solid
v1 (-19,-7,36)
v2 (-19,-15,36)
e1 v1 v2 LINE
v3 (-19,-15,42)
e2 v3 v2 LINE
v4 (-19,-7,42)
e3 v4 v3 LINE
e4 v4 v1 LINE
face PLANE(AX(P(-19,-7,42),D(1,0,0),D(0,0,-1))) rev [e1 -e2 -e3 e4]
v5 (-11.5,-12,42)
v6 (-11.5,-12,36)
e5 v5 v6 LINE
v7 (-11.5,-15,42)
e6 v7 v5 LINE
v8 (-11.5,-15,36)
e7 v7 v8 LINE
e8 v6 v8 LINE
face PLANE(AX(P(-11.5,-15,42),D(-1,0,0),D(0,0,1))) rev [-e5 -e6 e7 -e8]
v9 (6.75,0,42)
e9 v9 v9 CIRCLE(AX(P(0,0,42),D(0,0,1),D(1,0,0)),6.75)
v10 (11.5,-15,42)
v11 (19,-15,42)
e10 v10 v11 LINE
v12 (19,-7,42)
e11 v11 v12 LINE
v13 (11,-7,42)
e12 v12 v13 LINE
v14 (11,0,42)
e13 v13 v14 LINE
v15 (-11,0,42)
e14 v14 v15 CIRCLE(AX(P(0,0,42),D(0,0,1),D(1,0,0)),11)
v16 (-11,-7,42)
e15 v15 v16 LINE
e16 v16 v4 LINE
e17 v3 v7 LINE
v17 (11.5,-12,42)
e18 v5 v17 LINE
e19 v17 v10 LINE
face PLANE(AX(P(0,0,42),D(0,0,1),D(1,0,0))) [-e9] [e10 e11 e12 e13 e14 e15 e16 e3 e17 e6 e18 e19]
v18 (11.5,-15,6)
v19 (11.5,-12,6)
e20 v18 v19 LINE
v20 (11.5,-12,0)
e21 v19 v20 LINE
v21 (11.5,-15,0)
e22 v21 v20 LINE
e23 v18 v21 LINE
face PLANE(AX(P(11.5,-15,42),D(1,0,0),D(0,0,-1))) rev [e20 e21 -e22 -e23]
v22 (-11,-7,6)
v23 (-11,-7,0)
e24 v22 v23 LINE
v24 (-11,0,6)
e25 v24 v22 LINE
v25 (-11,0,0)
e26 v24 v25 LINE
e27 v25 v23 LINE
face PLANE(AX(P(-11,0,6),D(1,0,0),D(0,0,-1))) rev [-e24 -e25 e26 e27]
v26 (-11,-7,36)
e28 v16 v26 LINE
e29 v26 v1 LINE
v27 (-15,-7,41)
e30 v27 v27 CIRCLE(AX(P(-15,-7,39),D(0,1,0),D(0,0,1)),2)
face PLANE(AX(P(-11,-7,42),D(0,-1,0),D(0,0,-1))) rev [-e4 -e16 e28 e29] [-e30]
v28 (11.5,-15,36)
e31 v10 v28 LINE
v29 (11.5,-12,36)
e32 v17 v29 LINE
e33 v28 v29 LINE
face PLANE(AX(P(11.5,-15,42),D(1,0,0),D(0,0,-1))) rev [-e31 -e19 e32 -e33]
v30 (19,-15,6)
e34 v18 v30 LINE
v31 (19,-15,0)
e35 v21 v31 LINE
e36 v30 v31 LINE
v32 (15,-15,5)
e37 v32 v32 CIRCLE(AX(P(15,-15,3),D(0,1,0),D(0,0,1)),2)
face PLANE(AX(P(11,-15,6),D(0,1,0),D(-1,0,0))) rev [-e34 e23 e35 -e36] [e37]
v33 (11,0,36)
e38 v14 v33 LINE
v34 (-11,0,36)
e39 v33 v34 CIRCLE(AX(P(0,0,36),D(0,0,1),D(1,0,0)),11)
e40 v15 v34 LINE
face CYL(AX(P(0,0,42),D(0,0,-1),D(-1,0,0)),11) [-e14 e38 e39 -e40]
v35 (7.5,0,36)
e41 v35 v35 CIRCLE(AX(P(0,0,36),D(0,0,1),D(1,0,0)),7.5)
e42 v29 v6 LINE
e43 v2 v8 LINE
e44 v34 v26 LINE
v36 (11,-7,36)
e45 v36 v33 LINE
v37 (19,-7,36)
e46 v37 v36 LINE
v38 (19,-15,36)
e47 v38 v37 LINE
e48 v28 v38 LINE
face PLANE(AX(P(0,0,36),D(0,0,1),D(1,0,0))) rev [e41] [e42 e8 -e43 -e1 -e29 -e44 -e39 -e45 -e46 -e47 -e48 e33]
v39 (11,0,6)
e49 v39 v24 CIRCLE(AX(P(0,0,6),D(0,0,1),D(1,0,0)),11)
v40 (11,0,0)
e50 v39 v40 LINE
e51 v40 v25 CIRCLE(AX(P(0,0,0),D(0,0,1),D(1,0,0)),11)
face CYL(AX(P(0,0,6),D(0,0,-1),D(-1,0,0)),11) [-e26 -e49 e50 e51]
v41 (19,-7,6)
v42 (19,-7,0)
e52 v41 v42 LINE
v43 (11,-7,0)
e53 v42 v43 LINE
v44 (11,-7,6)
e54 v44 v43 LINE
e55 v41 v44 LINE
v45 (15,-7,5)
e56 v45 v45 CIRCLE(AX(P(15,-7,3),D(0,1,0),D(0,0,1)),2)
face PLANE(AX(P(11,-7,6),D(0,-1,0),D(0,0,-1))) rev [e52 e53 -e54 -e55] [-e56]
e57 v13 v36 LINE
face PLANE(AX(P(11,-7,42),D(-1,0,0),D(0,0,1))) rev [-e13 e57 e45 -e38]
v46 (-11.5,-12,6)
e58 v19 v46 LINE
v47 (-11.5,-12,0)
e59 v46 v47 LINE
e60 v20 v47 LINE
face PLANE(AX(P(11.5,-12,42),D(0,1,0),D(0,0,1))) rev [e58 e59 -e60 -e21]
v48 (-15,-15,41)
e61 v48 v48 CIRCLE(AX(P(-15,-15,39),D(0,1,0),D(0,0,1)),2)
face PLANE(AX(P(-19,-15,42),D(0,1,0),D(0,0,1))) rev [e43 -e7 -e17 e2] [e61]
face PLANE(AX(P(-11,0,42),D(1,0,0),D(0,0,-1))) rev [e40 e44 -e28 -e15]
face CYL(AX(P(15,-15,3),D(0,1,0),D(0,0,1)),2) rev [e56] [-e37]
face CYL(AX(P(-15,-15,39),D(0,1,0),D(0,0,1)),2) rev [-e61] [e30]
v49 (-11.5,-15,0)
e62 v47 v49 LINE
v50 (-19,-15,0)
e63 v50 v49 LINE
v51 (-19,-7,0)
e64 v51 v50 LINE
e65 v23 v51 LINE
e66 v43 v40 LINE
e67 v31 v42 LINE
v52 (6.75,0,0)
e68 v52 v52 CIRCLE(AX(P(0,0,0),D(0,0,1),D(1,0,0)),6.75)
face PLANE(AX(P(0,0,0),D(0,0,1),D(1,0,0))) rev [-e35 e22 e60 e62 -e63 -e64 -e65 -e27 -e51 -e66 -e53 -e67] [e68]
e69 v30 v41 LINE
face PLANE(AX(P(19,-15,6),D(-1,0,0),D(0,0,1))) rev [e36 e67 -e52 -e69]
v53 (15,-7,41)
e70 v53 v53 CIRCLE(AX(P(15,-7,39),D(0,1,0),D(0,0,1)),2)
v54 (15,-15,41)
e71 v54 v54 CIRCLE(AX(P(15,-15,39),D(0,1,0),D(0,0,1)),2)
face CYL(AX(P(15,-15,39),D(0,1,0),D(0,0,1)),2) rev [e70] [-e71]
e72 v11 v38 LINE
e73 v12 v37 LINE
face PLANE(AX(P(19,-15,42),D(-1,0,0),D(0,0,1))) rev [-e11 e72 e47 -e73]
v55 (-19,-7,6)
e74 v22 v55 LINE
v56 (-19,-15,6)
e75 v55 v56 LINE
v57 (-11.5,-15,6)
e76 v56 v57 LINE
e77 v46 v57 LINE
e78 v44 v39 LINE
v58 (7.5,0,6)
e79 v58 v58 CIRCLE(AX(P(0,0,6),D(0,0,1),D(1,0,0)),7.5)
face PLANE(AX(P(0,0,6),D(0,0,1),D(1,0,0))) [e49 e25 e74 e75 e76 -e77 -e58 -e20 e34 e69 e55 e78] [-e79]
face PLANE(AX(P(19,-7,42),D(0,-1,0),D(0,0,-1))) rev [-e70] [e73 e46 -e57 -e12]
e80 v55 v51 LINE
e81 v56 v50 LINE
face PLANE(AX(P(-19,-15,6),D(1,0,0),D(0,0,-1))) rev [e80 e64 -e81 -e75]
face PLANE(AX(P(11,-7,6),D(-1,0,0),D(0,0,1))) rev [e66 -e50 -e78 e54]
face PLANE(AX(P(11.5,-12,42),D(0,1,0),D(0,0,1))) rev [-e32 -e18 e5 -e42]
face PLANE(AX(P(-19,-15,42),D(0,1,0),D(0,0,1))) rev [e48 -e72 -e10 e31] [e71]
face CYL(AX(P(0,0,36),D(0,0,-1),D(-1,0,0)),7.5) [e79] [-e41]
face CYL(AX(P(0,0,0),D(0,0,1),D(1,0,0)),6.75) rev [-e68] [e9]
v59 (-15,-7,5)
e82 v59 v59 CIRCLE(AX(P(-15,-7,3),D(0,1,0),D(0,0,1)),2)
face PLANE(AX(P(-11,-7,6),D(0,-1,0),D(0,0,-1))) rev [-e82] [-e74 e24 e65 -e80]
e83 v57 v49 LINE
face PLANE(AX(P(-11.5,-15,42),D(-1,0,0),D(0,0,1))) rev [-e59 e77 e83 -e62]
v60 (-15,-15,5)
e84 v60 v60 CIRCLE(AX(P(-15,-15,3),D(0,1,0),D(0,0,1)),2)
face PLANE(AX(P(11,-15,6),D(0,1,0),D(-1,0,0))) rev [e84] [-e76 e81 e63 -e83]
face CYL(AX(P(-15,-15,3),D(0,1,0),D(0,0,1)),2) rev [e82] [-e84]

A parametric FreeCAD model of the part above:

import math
import FreeCAD as App
import Part
import Sketcher

doc = App.newDocument("Part")
body = doc.addObject("PartDesign::Body", "Body")

sketch1 = body.newObject("Sketcher::SketchObject", "Sketch")
sketch1.AttachmentSupport = (doc.getObject("XY_Plane"), [""])
sketch1.MapMode = "FlatFace"
sketch1.addGeometry(Part.LineSegment(App.Vector(-11, 0, 0), App.Vector(-11, -7, 0)), False)
sketch1.addGeometry(Part.LineSegment(App.Vector(-11, -7, 0), App.Vector(-19, -7, 0)), False)
sketch1.addGeometry(Part.LineSegment(App.Vector(-19, -7, 0), App.Vector(-19, -15, 0)), False)
sketch1.addGeometry(Part.LineSegment(App.Vector(-19, -15, 0), App.Vector(19, -15, 0)), False)
sketch1.addGeometry(Part.LineSegment(App.Vector(19, -15, 0), App.Vector(19, -7, 0)), False)
sketch1.addGeometry(Part.LineSegment(App.Vector(19, -7, 0), App.Vector(11, -7, 0)), False)
sketch1.addGeometry(Part.LineSegment(App.Vector(11, -7, 0), App.Vector(11, 0, 0)), False)
sketch1.addGeometry(Part.ArcOfCircle(Part.Circle(App.Vector(0, 0, 0), App.Vector(0, 0, 1), 11), math.radians(0), math.radians(180)), False)
sketch1.addConstraint(Sketcher.Constraint("Coincident", 0, 2, 1, 1))
sketch1.addConstraint(Sketcher.Constraint("Coincident", 1, 2, 2, 1))
sketch1.addConstraint(Sketcher.Constraint("Coincident", 2, 2, 3, 1))
sketch1.addConstraint(Sketcher.Constraint("Coincident", 3, 2, 4, 1))
sketch1.addConstraint(Sketcher.Constraint("Coincident", 4, 2, 5, 1))
sketch1.addConstraint(Sketcher.Constraint("Coincident", 5, 2, 6, 1))
sketch1.addConstraint(Sketcher.Constraint("Tangent", 6, 2, 7, 1))
sketch1.addConstraint(Sketcher.Constraint("Tangent", 7, 2, 0, 1))
sketch1.addConstraint(Sketcher.Constraint("Vertical", 0))
sketch1.addConstraint(Sketcher.Constraint("Horizontal", 1))
sketch1.addConstraint(Sketcher.Constraint("Vertical", 2))
sketch1.addConstraint(Sketcher.Constraint("Horizontal", 3))
sketch1.addConstraint(Sketcher.Constraint("Vertical", 4))
sketch1.addConstraint(Sketcher.Constraint("Horizontal", 5))
sketch1.addConstraint(Sketcher.Constraint("Vertical", 6))
sketch1.addConstraint(Sketcher.Constraint("Coincident", 7, 3, -1, 1))
sketch1.addConstraint(Sketcher.Constraint("Symmetric", 1, 2, 4, 2, -2))
sketch1.addConstraint(Sketcher.Constraint("Equal", 5, 2))
sketch1.addConstraint(Sketcher.Constraint("Radius", 7, 11.0))
sketch1.addConstraint(Sketcher.Constraint("DistanceX", 1, 2, 1, 1, 8.0))
sketch1.addConstraint(Sketcher.Constraint("DistanceY", 0, 2, 0, 1, 7.0))
pad1 = body.newObject("PartDesign::Pad", "Pad")
pad1.Profile = sketch1
pad1.Length = 6

sketch2 = body.newObject("Sketcher::SketchObject", "Sketch001")
sketch2.AttachmentSupport = (doc.getObject("XY_Plane"), [""])
sketch2.MapMode = "FlatFace"
sketch2.AttachmentOffset = App.Placement(App.Vector(0, 0, 6), App.Rotation())
sketch2.addGeometry(Part.Circle(App.Vector(0, 0, 0), App.Vector(0, 0, 1), 7.5), False)
sketch2.addConstraint(Sketcher.Constraint("Coincident", 0, 3, -1, 1))
sketch2.addConstraint(Sketcher.Constraint("Diameter", 0, 15.0))
pad2 = body.newObject("PartDesign::Pad", "Pad001")
pad2.Profile = sketch2
pad2.Length = 30

sketch3 = body.newObject("Sketcher::SketchObject", "Sketch002")
sketch3.AttachmentSupport = (doc.getObject("XY_Plane"), [""])
sketch3.MapMode = "FlatFace"
sketch3.AttachmentOffset = App.Placement(App.Vector(0, 0, 36), App.Rotation())
sketch3.addGeometry(Part.LineSegment(App.Vector(-11, 0, 0), App.Vector(-11, -7, 0)), False)
sketch3.addGeometry(Part.LineSegment(App.Vector(-11, -7, 0), App.Vector(-19, -7, 0)), False)
sketch3.addGeometry(Part.LineSegment(App.Vector(-19, -7, 0), App.Vector(-19, -15, 0)), False)
sketch3.addGeometry(Part.LineSegment(App.Vector(-19, -15, 0), App.Vector(19, -15, 0)), False)
sketch3.addGeometry(Part.LineSegment(App.Vector(19, -15, 0), App.Vector(19, -7, 0)), False)
sketch3.addGeometry(Part.LineSegment(App.Vector(19, -7, 0), App.Vector(11, -7, 0)), False)
sketch3.addGeometry(Part.LineSegment(App.Vector(11, -7, 0), App.Vector(11, 0, 0)), False)
sketch3.addGeometry(Part.ArcOfCircle(Part.Circle(App.Vector(0, 0, 0), App.Vector(0, 0, 1), 11), math.radians(0), math.radians(180)), False)
sketch3.addConstraint(Sketcher.Constraint("Coincident", 0, 2, 1, 1))
sketch3.addConstraint(Sketcher.Constraint("Coincident", 1, 2, 2, 1))
sketch3.addConstraint(Sketcher.Constraint("Coincident", 2, 2, 3, 1))
sketch3.addConstraint(Sketcher.Constraint("Coincident", 3, 2, 4, 1))
sketch3.addConstraint(Sketcher.Constraint("Coincident", 4, 2, 5, 1))
sketch3.addConstraint(Sketcher.Constraint("Coincident", 5, 2, 6, 1))
sketch3.addConstraint(Sketcher.Constraint("Tangent", 6, 2, 7, 1))
sketch3.addConstraint(Sketcher.Constraint("Tangent", 7, 2, 0, 1))
sketch3.addConstraint(Sketcher.Constraint("Vertical", 0))
sketch3.addConstraint(Sketcher.Constraint("Horizontal", 1))
sketch3.addConstraint(Sketcher.Constraint("Vertical", 2))
sketch3.addConstraint(Sketcher.Constraint("Horizontal", 3))
sketch3.addConstraint(Sketcher.Constraint("Vertical", 4))
sketch3.addConstraint(Sketcher.Constraint("Horizontal", 5))
sketch3.addConstraint(Sketcher.Constraint("Vertical", 6))
sketch3.addConstraint(Sketcher.Constraint("Coincident", 7, 3, -1, 1))
sketch3.addConstraint(Sketcher.Constraint("Symmetric", 1, 2, 4, 2, -2))
sketch3.addConstraint(Sketcher.Constraint("Equal", 5, 2))
sketch3.addConstraint(Sketcher.Constraint("Radius", 7, 11.0))
sketch3.addConstraint(Sketcher.Constraint("DistanceX", 1, 2, 1, 1, 8.0))
sketch3.addConstraint(Sketcher.Constraint("DistanceY", 0, 2, 0, 1, 7.0))
pad3 = body.newObject("PartDesign::Pad", "Pad002")
pad3.Profile = sketch3
pad3.Length = 6

sketch4 = body.newObject("Sketcher::SketchObject", "Sketch003")
sketch4.AttachmentSupport = (doc.getObject("XY_Plane"), [""])
sketch4.MapMode = "FlatFace"
sketch4.AttachmentOffset = App.Placement(App.Vector(0, 0, 42), App.Rotation())
sketch4.addGeometry(Part.Circle(App.Vector(0, 0, 0), App.Vector(0, 0, 1), 6.75), False)
sketch4.addConstraint(Sketcher.Constraint("Coincident", 0, 3, -1, 1))
sketch4.addConstraint(Sketcher.Constraint("Diameter", 0, 13.5))
pocket1 = body.newObject("PartDesign::Pocket", "Pocket")
pocket1.Profile = sketch4
pocket1.Type = "ThroughAll"

sketch5 = body.newObject("Sketcher::SketchObject", "Sketch004")
sketch5.AttachmentSupport = (doc.getObject("XY_Plane"), [""])
sketch5.MapMode = "FlatFace"
sketch5.addGeometry(Part.LineSegment(App.Vector(11.5, -12, 0), App.Vector(11.5, -15, 0)), False)
sketch5.addGeometry(Part.LineSegment(App.Vector(11.5, -15, 0), App.Vector(-11.5, -15, 0)), False)
sketch5.addGeometry(Part.LineSegment(App.Vector(-11.5, -15, 0), App.Vector(-11.5, -12, 0)), False)
sketch5.addGeometry(Part.LineSegment(App.Vector(-11.5, -12, 0), App.Vector(11.5, -12, 0)), False)
sketch5.addConstraint(Sketcher.Constraint("Coincident", 0, 2, 1, 1))
sketch5.addConstraint(Sketcher.Constraint("Coincident", 1, 2, 2, 1))
sketch5.addConstraint(Sketcher.Constraint("Coincident", 2, 2, 3, 1))
sketch5.addConstraint(Sketcher.Constraint("Coincident", 3, 2, 0, 1))
sketch5.addConstraint(Sketcher.Constraint("Vertical", 0))
sketch5.addConstraint(Sketcher.Constraint("Horizontal", 1))
sketch5.addConstraint(Sketcher.Constraint("Vertical", 2))
sketch5.addConstraint(Sketcher.Constraint("Horizontal", 3))
sketch5.addConstraint(Sketcher.Constraint("DistanceX", 1, 2, 1, 1, 23.0))
sketch5.addConstraint(Sketcher.Constraint("DistanceY", 0, 2, 0, 1, 3.0))
sketch5.addConstraint(Sketcher.Constraint("DistanceY", 0, 2, -1, 1, 15.0))
sketch5.addConstraint(Sketcher.Constraint("DistanceX", -1, 1, 0, 2, 11.5))
pocket2 = body.newObject("PartDesign::Pocket", "Pocket001")
pocket2.Profile = sketch5
pocket2.Type = "ThroughAll"
pocket2.Midplane = True

sketch6 = body.newObject("Sketcher::SketchObject", "Sketch005")
sketch6.AttachmentSupport = (doc.getObject("XZ_Plane"), [""])
sketch6.MapMode = "FlatFace"
sketch6.AttachmentOffset = App.Placement(App.Vector(0, 0, 7), App.Rotation())
sketch6.addGeometry(Part.Circle(App.Vector(-15, 3, 0), App.Vector(0, 0, 1), 2), False)
sketch6.addGeometry(Part.Circle(App.Vector(15, 3, 0), App.Vector(0, 0, 1), 2), False)
sketch6.addGeometry(Part.Circle(App.Vector(15, 39, 0), App.Vector(0, 0, 1), 2), False)
sketch6.addGeometry(Part.Circle(App.Vector(-15, 39, 0), App.Vector(0, 0, 1), 2), False)
sketch6.addConstraint(Sketcher.Constraint("Equal", 0, 1))
sketch6.addConstraint(Sketcher.Constraint("Equal", 1, 2))
sketch6.addConstraint(Sketcher.Constraint("Equal", 2, 3))
sketch6.addConstraint(Sketcher.Constraint("Symmetric", 0, 3, 1, 3, -2))
sketch6.addConstraint(Sketcher.Constraint("Symmetric", 2, 3, 3, 3, -2))
sketch6.addConstraint(Sketcher.Constraint("Vertical", 1, 3, 2, 3))
sketch6.addConstraint(Sketcher.Constraint("Diameter", 0, 4.0))
sketch6.addConstraint(Sketcher.Constraint("DistanceX", 0, 3, -1, 1, 15.0))
sketch6.addConstraint(Sketcher.Constraint("DistanceY", -1, 1, 0, 3, 3.0))
sketch6.addConstraint(Sketcher.Constraint("DistanceY", -1, 1, 2, 3, 39.0))
pocket3 = body.newObject("PartDesign::Pocket", "Pocket002")
pocket3.Profile = sketch6
pocket3.Type = "ThroughAll"
pocket3.Reversed = True

doc.recompute()
